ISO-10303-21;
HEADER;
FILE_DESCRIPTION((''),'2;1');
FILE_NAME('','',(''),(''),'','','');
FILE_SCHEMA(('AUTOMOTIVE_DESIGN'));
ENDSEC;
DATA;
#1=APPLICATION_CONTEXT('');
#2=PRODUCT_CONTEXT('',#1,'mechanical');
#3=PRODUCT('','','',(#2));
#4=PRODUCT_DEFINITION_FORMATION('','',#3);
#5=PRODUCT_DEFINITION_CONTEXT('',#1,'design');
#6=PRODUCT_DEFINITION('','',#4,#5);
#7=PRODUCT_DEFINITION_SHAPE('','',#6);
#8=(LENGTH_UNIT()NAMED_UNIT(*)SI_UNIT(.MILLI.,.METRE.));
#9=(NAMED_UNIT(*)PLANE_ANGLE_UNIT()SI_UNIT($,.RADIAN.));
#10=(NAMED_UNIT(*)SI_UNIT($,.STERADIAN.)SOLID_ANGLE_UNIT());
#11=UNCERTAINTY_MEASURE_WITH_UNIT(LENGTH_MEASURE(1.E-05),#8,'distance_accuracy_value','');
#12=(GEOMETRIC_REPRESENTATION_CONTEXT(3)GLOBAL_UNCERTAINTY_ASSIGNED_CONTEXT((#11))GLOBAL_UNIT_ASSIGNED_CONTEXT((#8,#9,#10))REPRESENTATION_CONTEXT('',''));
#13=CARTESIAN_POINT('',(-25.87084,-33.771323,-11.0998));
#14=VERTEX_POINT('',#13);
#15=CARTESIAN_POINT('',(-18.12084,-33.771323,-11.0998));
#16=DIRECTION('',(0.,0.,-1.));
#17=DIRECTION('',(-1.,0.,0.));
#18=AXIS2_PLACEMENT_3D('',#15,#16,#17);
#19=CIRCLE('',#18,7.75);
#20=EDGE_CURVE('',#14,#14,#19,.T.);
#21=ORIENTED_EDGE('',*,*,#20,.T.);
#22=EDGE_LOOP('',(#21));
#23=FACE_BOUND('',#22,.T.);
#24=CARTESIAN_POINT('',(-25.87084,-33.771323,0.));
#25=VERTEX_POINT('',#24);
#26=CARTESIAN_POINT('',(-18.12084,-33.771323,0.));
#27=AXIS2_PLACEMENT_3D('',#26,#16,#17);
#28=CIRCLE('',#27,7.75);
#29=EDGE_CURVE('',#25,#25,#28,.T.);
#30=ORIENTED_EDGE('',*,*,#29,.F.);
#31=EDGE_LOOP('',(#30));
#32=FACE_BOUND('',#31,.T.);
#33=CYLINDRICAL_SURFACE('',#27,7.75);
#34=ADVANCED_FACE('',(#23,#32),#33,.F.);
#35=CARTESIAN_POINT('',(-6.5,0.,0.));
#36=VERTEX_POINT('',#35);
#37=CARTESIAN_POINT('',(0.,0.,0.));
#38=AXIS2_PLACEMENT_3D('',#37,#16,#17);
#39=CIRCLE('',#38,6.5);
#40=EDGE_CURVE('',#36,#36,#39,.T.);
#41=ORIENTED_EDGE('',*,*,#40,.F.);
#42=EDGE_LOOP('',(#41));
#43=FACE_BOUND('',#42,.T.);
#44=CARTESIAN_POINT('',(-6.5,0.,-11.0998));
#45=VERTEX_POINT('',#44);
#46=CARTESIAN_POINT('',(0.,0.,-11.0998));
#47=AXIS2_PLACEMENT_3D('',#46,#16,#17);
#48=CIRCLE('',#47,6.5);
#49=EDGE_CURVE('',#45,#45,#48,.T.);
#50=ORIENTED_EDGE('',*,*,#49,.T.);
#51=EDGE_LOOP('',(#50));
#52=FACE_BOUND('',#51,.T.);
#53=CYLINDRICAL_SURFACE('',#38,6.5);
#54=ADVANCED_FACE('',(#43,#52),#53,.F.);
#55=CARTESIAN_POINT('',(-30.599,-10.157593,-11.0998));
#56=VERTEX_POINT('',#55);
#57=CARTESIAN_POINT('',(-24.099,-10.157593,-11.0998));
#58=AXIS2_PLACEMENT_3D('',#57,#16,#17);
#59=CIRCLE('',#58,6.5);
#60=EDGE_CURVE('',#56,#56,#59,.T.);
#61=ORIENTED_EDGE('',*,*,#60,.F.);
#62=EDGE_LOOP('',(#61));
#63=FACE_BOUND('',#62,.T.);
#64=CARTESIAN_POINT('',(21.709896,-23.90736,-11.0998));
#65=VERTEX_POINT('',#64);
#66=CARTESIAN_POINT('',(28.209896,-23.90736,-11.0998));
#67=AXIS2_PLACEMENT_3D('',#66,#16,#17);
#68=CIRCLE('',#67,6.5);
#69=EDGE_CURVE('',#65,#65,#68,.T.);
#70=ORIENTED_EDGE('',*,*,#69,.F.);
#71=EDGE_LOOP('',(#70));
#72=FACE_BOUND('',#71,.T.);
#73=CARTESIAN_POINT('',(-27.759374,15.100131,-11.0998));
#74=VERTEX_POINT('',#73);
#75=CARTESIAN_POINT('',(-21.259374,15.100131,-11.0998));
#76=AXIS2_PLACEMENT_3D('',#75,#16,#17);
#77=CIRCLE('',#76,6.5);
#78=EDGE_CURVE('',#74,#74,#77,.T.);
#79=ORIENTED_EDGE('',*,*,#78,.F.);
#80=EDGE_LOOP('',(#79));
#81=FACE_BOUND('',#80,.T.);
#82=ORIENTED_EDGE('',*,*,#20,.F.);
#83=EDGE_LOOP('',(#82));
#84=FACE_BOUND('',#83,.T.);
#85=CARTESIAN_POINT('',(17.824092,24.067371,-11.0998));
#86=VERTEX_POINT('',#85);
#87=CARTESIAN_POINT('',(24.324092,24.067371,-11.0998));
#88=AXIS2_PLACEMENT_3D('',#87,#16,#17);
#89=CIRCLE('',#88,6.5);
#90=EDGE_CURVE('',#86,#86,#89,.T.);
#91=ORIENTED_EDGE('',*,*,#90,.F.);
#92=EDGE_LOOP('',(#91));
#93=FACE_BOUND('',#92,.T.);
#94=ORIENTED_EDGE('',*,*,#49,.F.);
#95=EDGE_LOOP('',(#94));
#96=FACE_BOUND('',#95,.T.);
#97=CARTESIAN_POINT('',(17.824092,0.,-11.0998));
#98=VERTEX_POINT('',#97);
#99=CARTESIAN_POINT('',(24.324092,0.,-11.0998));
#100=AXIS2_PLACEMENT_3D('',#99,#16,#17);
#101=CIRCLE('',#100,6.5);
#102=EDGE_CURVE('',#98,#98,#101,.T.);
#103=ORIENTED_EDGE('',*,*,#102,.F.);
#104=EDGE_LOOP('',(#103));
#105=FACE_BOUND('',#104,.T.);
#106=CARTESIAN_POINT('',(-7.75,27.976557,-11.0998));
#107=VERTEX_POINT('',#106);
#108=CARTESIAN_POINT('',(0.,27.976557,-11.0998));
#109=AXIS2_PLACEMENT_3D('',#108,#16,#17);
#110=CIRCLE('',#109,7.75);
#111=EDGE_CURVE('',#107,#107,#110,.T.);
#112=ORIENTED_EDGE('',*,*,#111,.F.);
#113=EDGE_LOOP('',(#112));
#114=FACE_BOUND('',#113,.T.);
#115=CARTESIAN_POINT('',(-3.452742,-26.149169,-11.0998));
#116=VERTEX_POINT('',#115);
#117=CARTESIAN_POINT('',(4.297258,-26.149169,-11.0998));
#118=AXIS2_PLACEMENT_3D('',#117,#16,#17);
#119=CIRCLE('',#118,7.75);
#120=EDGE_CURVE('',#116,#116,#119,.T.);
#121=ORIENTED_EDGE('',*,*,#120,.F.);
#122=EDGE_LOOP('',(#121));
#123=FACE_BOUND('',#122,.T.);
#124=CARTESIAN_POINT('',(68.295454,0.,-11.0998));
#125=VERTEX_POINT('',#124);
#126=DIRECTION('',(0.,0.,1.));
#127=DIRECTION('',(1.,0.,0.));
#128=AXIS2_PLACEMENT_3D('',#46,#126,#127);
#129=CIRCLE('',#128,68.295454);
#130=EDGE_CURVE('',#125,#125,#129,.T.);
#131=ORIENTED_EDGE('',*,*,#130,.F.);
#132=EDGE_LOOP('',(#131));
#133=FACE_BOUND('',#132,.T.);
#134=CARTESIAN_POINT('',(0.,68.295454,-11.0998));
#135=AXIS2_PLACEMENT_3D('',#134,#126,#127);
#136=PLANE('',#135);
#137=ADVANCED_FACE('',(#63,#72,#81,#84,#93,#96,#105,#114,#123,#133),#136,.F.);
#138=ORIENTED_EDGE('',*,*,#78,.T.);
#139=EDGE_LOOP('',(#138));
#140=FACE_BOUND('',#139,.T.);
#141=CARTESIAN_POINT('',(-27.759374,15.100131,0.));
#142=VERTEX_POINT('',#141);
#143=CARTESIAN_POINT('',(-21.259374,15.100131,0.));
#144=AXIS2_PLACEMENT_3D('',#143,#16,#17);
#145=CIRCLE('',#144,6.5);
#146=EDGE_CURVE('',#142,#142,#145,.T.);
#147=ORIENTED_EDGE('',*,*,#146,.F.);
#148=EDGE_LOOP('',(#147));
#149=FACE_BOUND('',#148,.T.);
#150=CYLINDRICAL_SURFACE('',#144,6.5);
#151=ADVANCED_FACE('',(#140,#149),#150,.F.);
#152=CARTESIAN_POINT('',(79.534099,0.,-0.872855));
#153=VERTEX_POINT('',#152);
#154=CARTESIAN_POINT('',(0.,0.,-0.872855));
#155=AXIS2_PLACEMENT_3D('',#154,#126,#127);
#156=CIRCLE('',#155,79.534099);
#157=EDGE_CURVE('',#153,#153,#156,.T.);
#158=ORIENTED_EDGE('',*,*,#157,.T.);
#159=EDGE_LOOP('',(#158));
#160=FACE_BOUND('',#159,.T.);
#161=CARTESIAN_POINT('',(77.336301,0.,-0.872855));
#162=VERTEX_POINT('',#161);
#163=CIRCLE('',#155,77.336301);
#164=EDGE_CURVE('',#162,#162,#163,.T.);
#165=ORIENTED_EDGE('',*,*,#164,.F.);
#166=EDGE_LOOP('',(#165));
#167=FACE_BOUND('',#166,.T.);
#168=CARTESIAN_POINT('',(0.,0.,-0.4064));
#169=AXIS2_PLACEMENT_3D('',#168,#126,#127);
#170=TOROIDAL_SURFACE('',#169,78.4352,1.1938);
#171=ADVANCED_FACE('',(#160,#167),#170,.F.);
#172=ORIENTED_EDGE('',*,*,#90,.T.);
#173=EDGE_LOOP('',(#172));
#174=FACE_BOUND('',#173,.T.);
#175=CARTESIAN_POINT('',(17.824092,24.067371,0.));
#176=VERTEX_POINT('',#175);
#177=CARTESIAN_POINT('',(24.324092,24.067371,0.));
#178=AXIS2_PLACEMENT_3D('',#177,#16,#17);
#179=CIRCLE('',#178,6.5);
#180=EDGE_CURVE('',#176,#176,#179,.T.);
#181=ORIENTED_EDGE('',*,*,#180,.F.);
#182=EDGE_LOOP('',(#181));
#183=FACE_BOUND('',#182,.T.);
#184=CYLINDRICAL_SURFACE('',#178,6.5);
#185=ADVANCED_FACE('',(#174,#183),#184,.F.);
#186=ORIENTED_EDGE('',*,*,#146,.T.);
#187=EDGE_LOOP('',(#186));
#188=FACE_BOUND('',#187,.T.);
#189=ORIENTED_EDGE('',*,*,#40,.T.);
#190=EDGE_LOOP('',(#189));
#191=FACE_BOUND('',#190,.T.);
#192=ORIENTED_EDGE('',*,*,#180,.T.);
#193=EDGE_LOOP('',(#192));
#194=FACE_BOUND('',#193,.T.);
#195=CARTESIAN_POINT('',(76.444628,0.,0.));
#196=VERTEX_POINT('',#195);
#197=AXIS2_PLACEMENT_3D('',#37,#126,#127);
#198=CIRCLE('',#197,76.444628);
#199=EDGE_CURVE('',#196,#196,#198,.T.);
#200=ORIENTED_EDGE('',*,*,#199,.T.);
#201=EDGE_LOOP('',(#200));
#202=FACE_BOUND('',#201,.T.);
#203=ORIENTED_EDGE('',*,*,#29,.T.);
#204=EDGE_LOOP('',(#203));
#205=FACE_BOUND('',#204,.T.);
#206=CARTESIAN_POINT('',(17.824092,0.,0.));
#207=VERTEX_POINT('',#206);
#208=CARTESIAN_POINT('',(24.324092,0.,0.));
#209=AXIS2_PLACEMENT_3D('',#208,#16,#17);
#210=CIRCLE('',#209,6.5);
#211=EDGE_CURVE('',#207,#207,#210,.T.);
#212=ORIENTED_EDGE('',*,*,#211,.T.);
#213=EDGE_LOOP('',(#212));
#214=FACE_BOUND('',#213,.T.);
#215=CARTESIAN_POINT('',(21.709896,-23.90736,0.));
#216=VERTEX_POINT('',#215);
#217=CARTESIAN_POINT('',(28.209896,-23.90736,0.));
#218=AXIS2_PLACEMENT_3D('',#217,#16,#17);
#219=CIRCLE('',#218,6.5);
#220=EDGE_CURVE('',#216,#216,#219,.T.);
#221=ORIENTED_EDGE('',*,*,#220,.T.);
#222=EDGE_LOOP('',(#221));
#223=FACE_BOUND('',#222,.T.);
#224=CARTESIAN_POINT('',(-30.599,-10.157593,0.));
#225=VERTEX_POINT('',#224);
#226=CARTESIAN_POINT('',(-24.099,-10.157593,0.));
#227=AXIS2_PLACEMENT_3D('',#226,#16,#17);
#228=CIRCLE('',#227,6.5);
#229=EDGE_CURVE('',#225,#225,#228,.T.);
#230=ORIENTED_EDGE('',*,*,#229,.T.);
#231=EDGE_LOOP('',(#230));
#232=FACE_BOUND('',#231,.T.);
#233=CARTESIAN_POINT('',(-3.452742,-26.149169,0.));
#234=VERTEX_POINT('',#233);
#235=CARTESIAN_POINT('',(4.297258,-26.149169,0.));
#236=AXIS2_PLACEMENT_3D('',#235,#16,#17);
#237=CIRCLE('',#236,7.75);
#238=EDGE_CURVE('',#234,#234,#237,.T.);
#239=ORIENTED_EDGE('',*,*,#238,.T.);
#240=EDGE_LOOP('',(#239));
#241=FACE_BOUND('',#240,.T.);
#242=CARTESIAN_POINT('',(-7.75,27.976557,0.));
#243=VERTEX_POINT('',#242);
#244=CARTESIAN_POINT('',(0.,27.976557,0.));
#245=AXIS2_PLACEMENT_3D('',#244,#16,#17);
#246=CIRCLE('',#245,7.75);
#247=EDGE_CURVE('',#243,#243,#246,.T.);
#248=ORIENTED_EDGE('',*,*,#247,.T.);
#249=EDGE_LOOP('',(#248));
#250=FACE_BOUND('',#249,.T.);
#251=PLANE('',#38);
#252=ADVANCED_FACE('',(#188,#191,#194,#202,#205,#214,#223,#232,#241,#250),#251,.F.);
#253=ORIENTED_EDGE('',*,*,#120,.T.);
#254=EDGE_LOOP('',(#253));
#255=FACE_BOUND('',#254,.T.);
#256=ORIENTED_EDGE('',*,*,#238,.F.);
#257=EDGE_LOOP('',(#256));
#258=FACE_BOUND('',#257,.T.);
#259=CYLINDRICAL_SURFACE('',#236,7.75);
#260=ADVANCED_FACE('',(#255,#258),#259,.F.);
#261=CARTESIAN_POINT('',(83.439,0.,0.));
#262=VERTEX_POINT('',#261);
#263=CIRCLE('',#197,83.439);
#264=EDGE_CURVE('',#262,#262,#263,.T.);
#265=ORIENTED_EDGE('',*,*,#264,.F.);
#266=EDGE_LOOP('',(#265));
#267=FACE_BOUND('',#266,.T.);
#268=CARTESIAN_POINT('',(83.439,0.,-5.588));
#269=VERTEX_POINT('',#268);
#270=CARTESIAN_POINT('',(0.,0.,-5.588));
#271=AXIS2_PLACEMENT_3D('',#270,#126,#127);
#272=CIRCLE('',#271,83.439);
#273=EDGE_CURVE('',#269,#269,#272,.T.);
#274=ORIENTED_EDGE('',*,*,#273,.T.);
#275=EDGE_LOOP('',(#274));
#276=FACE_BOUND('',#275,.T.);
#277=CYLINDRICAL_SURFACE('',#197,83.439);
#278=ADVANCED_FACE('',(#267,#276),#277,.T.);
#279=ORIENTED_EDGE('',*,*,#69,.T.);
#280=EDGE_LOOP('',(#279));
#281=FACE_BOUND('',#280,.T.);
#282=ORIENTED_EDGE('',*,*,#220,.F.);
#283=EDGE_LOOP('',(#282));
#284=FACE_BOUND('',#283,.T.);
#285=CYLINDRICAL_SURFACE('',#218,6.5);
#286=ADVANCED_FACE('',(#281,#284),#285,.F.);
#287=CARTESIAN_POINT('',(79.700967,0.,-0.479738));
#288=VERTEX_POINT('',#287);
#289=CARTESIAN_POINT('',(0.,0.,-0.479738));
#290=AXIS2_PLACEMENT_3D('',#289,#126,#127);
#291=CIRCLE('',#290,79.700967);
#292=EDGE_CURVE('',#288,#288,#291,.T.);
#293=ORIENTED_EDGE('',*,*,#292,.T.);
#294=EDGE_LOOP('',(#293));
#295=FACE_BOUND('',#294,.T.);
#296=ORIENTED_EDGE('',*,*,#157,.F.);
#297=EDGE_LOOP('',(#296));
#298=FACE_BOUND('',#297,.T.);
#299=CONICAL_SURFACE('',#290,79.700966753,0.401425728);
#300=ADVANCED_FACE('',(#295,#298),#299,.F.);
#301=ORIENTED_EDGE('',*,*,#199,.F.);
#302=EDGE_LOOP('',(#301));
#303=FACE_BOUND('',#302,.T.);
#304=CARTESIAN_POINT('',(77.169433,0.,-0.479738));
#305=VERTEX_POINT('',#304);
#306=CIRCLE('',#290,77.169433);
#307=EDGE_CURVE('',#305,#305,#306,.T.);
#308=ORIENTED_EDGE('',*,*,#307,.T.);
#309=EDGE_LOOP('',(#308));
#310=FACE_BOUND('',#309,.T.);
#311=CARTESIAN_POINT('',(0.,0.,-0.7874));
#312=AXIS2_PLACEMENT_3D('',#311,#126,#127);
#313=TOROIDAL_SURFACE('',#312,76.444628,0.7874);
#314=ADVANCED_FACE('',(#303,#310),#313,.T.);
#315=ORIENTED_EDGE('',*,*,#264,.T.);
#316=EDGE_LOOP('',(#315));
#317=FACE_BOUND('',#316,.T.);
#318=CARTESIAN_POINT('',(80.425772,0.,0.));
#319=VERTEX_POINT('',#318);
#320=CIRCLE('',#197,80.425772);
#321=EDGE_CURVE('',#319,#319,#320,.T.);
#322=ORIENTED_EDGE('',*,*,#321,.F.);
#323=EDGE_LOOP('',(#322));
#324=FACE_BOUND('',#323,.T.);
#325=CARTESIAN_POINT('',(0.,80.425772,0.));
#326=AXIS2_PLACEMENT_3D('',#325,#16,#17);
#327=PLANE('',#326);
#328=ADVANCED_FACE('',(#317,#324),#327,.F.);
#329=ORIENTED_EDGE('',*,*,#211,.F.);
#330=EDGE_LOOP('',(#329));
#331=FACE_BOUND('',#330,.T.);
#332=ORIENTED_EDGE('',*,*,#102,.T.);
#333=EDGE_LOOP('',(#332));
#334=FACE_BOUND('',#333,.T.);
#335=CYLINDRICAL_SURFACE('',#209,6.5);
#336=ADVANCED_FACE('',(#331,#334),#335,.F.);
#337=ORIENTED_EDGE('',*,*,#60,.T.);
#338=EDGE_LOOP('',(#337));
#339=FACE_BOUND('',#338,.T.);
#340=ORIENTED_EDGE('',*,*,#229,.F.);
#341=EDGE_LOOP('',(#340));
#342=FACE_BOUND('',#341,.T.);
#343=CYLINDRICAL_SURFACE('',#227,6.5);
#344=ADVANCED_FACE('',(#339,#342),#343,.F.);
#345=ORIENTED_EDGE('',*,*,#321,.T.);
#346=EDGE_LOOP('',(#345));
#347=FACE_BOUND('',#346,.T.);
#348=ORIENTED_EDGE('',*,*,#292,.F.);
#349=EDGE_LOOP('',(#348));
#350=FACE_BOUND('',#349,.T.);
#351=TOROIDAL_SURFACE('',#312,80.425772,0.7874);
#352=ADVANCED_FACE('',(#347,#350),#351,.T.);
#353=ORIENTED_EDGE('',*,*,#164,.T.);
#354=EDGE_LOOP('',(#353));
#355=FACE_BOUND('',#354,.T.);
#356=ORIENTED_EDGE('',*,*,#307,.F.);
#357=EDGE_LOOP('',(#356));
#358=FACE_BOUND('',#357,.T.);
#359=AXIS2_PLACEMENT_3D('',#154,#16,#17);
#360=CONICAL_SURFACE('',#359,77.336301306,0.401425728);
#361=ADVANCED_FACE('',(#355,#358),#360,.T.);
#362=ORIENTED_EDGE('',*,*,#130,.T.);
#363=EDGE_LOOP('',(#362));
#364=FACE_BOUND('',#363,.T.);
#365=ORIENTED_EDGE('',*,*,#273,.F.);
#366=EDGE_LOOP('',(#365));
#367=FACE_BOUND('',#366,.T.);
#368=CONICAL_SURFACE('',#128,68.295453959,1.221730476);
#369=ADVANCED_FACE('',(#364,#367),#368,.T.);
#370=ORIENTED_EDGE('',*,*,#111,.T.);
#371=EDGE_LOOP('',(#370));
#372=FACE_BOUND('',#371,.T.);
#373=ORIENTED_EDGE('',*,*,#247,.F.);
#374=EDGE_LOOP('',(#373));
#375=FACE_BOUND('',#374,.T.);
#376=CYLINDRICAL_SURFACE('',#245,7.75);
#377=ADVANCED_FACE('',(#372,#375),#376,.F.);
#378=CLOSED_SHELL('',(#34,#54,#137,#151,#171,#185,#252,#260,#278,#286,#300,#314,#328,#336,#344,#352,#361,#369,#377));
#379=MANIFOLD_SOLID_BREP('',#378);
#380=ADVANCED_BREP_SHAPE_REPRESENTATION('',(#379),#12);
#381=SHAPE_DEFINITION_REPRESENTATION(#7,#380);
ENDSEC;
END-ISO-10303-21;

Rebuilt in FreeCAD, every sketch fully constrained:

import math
import FreeCAD as App
import Part
import Sketcher
from FreeCAD import Vector
Q = App.Units.Quantity

doc = App.newDocument("Part")
body = doc.addObject("PartDesign::Body", "Body")

# Sketch on YZ plane
sketch1 = doc.addObject("Sketcher::SketchObject", "Sketch")
body.addObject(sketch1)
sketch1.AttachmentSupport = (doc.YZ_Plane, [""])
sketch1.MapMode = "FlatFace"
sketch1.addGeometry([
    Part.LineSegment(Vector(76.44, 0, 0), Vector(0, 0, 0)),  # 0
    Part.LineSegment(Vector(0, 0, 0), Vector(0, -11.1, 0)),  # 1
    Part.LineSegment(Vector(0, -11.1, 0), Vector(68.3, -11.1, 0)),  # 2
    Part.LineSegment(Vector(68.3, -11.1, 0), Vector(83.44, -5.59, 0)),  # 3
    Part.LineSegment(Vector(83.44, -5.59, 0), Vector(83.44, 0, 0)),  # 4
    Part.LineSegment(Vector(83.44, 0, 0), Vector(80.43, 0, 0)),  # 5
    Part.ArcOfCircle(Part.Circle(Vector(80.43, -0.79, 0), Vector(0, 0, 1), 0.79), math.radians(90), math.radians(157)),  # 6
    Part.LineSegment(Vector(79.7, -0.48, 0), Vector(79.53, -0.87, 0)),  # 7
    Part.ArcOfCircle(Part.Circle(Vector(78.44, -0.41, 0), Vector(0, 0, 1), 1.19), math.radians(-157), math.radians(-23)),  # 8
    Part.LineSegment(Vector(77.34, -0.87, 0), Vector(77.17, -0.48, 0)),  # 9
    Part.ArcOfCircle(Part.Circle(Vector(76.44, -0.79, 0), Vector(0, 0, 1), 0.79), math.radians(23), math.radians(90)),  # 10
], False)
sketch1.addConstraint([
    Sketcher.Constraint("Coincident", 0, 2, 1, 1),
    Sketcher.Constraint("Coincident", 1, 2, 2, 1),
    Sketcher.Constraint("Coincident", 2, 2, 3, 1),
    Sketcher.Constraint("Coincident", 3, 2, 4, 1),
    Sketcher.Constraint("Coincident", 4, 2, 5, 1),
    Sketcher.Constraint("Tangent", 5, 2, 6, 1),
    Sketcher.Constraint("Tangent", 6, 2, 7, 1),
    Sketcher.Constraint("Tangent", 7, 2, 8, 2),
    Sketcher.Constraint("Tangent", 8, 1, 9, 1),
    Sketcher.Constraint("Tangent", 9, 2, 10, 1),
    Sketcher.Constraint("Tangent", 10, 2, 0, 1),
    Sketcher.Constraint("Horizontal", 0),
    Sketcher.Constraint("Vertical", 1),
    Sketcher.Constraint("Horizontal", 2),
    Sketcher.Constraint("Vertical", 4),
    Sketcher.Constraint("Horizontal", 5),
    Sketcher.Constraint("Coincident", 0, 2, -1, 1),
    Sketcher.Constraint("Equal", 6, 10),
    Sketcher.Constraint("PointOnObject", 4, 2, -1),
    Sketcher.Constraint("Horizontal", 7, 2, 8, 1),
    Sketcher.Constraint("Angle", 3, Q("20 deg")),
    Sketcher.Constraint("Angle", 7, Q("-113 deg")),
    Sketcher.Constraint("Radius", 6, Q("0.031 in")),
    Sketcher.Constraint("Radius", 8, Q("0.047 in")),
    Sketcher.Constraint("DistanceY", 4, 1, 4, 2, Q("0.22 in")),
    Sketcher.Constraint("DistanceY", 1, 2, 1, 1, Q("0.437 in")),
    Sketcher.Constraint("DistanceX", -1, 1, 8, 3, Q("3.088 in")),
    Sketcher.Constraint("DistanceY", 8, 3, -1, 1, Q("0.016 in")),
    Sketcher.Constraint("DistanceX", -1, 1, 3, 2, Q("3.285 in")),
])
revolution = doc.addObject("PartDesign::Revolution", "Revolution")
body.addObject(revolution)
revolution.Profile = sketch1
revolution.ReferenceAxis = (sketch1, ["V_Axis"])
revolution.Angle = 360

# Sketch on XY plane
sketch2 = doc.addObject("Sketcher::SketchObject", "Sketch001")
body.addObject(sketch2)
sketch2.AttachmentSupport = (doc.XY_Plane, [""])
sketch2.MapMode = "FlatFace"
sketch2.AttachmentOffset = App.Placement(Vector(0, 0, -0.437 * 25.4), App.Rotation())
sketch2.addGeometry([
    Part.Circle(Vector(0, 0, 0), Vector(0, 0, 1), 6),  # 0
    Part.Circle(Vector(0, 28, 0), Vector(0, 0, 1), 8),  # 1
    Part.Circle(Vector(24, 0, 0), Vector(0, 0, 1), 6),  # 2
    Part.Circle(Vector(-24, -10, 0), Vector(0, 0, 1), 6),  # 3
    Part.Circle(Vector(24, 24, 0), Vector(0, 0, 1), 6),  # 4
    Part.Circle(Vector(-21, 15, 0), Vector(0, 0, 1), 6),  # 5
    Part.Circle(Vector(4, -26, 0), Vector(0, 0, 1), 8),  # 6
    Part.Circle(Vector(28, -24, 0), Vector(0, 0, 1), 6),  # 7
    Part.Circle(Vector(-18, -34, 0), Vector(0, 0, 1), 8),  # 8
], False)
sketch2.addConstraint([
    Sketcher.Constraint("Coincident", 0, 3, -1, 1),
    Sketcher.Constraint("Equal", 0, 2),
    Sketcher.Constraint("Equal", 2, 3),
    Sketcher.Constraint("Equal", 3, 4),
    Sketcher.Constraint("Equal", 4, 5),
    Sketcher.Constraint("Equal", 1, 6),
    Sketcher.Constraint("Equal", 5, 7),
    Sketcher.Constraint("Equal", 6, 8),
    Sketcher.Constraint("PointOnObject", 1, 3, -2),
    Sketcher.Constraint("PointOnObject", 2, 3, -1),
    Sketcher.Constraint("Vertical", 2, 3, 4, 3),
    Sketcher.Constraint("Diameter", 0, Q("13 mm")),
    Sketcher.Constraint("Diameter", 1, Q("15.5 mm")),
    Sketcher.Constraint("DistanceX", 3, 3, -1, 1, Q("24.099 mm")),
    Sketcher.Constraint("DistanceY", 6, 3, 5, 3, Q("41.249301 mm")),
    Sketcher.Constraint("DistanceX", 8, 3, 6, 3, Q("22.418098 mm")),
    Sketcher.Constraint("DistanceY", -1, 1, 4, 3, Q("24.067371 mm")),
    Sketcher.Constraint("DistanceY", -1, 1, 5, 3, Q("15.100131 mm")),
    Sketcher.Constraint("DistanceY", 7, 3, -1, 1, Q("23.90736 mm")),
    Sketcher.Constraint("DistanceX", 8, 3, -1, 1, Q("18.12084 mm")),
    Sketcher.Constraint("DistanceY", 3, 3, 1, 3, Q("38.13415 mm")),
    Sketcher.Constraint("DistanceX", 5, 3, 6, 3, Q("25.556632 mm")),
    Sketcher.Constraint("DistanceX", 6, 3, 7, 3, Q("23.912638 mm")),
    Sketcher.Constraint("DistanceY", 8, 3, 3, 3, Q("23.61373 mm")),
    Sketcher.Constraint("DistanceY", -1, 1, 1, 3, Q("27.976557 mm")),
    Sketcher.Constraint("DistanceX", -1, 1, 2, 3, Q("24.324092 mm")),
])
pocket1 = doc.addObject("PartDesign::Pocket", "Pocket")
body.addObject(pocket1)
pocket1.Profile = sketch2
pocket1.Type = "ThroughAll"
pocket1.Reversed = True

doc.recompute()
